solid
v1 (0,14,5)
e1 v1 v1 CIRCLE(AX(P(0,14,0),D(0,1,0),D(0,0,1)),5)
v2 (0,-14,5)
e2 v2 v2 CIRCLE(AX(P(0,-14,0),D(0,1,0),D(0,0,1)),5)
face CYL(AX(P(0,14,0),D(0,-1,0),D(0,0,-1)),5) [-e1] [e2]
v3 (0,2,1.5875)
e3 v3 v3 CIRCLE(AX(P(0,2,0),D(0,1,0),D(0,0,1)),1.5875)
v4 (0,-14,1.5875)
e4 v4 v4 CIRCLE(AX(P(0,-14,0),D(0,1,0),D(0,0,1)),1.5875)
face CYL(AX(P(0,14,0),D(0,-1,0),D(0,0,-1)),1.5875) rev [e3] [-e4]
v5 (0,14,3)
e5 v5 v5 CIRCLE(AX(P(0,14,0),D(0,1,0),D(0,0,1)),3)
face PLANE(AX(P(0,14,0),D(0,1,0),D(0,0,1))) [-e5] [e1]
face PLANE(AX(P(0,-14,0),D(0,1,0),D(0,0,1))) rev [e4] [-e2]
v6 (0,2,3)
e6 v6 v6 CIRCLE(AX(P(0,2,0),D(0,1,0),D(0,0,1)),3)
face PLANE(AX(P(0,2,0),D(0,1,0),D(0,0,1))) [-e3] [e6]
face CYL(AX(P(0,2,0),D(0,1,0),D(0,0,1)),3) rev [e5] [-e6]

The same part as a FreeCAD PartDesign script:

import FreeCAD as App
import Part
import Sketcher
from FreeCAD import Vector

doc = App.newDocument("Part")
body = doc.addObject("PartDesign::Body", "Body")

# Sketch on XZ plane
sketch1 = body.newObject("Sketcher::SketchObject", "Sketch")
sketch1.AttachmentSupport = (doc.getObject("XZ_Plane"), [""])
sketch1.MapMode = "FlatFace"
sketch1.addGeometry([
    Part.Circle(Vector(0, 0, 0), Vector(0, 0, 1), 5),
    Part.Circle(Vector(0, 0, 0), Vector(0, 0, 1), 1.6),
], False)
sketch1.addConstraint([
    Sketcher.Constraint("Coincident", 0, 3, -1, 1),
    Sketcher.Constraint("Coincident", 1, 3, -1, 1),
    Sketcher.Constraint("Diameter", 0, 10.0),
    Sketcher.Constraint("Diameter", 1, 3.175),
])
pad1 = body.newObject("PartDesign::Pad", "Pad")
pad1.Profile = sketch1
pad1.Length = 28
pad1.Midplane = True

# Sketch on XZ plane
sketch2 = body.newObject("Sketcher::SketchObject", "Sketch001")
sketch2.AttachmentSupport = (doc.getObject("XZ_Plane"), [""])
sketch2.MapMode = "FlatFace"
sketch2.AttachmentOffset = App.Placement(Vector(0, 0, -14), App.Rotation())
sketch2.addGeometry(Part.Circle(Vector(0, 0, 0), Vector(0, 0, 1), 3), False)
sketch2.addConstraint([
    Sketcher.Constraint("Coincident", 0, 3, -1, 1),
    Sketcher.Constraint("Diameter", 0, 6.0),
])
pocket1 = body.newObject("PartDesign::Pocket", "Pocket")
pocket1.Profile = sketch2
pocket1.Length = 12
pocket1.Reversed = True

doc.recompute()
